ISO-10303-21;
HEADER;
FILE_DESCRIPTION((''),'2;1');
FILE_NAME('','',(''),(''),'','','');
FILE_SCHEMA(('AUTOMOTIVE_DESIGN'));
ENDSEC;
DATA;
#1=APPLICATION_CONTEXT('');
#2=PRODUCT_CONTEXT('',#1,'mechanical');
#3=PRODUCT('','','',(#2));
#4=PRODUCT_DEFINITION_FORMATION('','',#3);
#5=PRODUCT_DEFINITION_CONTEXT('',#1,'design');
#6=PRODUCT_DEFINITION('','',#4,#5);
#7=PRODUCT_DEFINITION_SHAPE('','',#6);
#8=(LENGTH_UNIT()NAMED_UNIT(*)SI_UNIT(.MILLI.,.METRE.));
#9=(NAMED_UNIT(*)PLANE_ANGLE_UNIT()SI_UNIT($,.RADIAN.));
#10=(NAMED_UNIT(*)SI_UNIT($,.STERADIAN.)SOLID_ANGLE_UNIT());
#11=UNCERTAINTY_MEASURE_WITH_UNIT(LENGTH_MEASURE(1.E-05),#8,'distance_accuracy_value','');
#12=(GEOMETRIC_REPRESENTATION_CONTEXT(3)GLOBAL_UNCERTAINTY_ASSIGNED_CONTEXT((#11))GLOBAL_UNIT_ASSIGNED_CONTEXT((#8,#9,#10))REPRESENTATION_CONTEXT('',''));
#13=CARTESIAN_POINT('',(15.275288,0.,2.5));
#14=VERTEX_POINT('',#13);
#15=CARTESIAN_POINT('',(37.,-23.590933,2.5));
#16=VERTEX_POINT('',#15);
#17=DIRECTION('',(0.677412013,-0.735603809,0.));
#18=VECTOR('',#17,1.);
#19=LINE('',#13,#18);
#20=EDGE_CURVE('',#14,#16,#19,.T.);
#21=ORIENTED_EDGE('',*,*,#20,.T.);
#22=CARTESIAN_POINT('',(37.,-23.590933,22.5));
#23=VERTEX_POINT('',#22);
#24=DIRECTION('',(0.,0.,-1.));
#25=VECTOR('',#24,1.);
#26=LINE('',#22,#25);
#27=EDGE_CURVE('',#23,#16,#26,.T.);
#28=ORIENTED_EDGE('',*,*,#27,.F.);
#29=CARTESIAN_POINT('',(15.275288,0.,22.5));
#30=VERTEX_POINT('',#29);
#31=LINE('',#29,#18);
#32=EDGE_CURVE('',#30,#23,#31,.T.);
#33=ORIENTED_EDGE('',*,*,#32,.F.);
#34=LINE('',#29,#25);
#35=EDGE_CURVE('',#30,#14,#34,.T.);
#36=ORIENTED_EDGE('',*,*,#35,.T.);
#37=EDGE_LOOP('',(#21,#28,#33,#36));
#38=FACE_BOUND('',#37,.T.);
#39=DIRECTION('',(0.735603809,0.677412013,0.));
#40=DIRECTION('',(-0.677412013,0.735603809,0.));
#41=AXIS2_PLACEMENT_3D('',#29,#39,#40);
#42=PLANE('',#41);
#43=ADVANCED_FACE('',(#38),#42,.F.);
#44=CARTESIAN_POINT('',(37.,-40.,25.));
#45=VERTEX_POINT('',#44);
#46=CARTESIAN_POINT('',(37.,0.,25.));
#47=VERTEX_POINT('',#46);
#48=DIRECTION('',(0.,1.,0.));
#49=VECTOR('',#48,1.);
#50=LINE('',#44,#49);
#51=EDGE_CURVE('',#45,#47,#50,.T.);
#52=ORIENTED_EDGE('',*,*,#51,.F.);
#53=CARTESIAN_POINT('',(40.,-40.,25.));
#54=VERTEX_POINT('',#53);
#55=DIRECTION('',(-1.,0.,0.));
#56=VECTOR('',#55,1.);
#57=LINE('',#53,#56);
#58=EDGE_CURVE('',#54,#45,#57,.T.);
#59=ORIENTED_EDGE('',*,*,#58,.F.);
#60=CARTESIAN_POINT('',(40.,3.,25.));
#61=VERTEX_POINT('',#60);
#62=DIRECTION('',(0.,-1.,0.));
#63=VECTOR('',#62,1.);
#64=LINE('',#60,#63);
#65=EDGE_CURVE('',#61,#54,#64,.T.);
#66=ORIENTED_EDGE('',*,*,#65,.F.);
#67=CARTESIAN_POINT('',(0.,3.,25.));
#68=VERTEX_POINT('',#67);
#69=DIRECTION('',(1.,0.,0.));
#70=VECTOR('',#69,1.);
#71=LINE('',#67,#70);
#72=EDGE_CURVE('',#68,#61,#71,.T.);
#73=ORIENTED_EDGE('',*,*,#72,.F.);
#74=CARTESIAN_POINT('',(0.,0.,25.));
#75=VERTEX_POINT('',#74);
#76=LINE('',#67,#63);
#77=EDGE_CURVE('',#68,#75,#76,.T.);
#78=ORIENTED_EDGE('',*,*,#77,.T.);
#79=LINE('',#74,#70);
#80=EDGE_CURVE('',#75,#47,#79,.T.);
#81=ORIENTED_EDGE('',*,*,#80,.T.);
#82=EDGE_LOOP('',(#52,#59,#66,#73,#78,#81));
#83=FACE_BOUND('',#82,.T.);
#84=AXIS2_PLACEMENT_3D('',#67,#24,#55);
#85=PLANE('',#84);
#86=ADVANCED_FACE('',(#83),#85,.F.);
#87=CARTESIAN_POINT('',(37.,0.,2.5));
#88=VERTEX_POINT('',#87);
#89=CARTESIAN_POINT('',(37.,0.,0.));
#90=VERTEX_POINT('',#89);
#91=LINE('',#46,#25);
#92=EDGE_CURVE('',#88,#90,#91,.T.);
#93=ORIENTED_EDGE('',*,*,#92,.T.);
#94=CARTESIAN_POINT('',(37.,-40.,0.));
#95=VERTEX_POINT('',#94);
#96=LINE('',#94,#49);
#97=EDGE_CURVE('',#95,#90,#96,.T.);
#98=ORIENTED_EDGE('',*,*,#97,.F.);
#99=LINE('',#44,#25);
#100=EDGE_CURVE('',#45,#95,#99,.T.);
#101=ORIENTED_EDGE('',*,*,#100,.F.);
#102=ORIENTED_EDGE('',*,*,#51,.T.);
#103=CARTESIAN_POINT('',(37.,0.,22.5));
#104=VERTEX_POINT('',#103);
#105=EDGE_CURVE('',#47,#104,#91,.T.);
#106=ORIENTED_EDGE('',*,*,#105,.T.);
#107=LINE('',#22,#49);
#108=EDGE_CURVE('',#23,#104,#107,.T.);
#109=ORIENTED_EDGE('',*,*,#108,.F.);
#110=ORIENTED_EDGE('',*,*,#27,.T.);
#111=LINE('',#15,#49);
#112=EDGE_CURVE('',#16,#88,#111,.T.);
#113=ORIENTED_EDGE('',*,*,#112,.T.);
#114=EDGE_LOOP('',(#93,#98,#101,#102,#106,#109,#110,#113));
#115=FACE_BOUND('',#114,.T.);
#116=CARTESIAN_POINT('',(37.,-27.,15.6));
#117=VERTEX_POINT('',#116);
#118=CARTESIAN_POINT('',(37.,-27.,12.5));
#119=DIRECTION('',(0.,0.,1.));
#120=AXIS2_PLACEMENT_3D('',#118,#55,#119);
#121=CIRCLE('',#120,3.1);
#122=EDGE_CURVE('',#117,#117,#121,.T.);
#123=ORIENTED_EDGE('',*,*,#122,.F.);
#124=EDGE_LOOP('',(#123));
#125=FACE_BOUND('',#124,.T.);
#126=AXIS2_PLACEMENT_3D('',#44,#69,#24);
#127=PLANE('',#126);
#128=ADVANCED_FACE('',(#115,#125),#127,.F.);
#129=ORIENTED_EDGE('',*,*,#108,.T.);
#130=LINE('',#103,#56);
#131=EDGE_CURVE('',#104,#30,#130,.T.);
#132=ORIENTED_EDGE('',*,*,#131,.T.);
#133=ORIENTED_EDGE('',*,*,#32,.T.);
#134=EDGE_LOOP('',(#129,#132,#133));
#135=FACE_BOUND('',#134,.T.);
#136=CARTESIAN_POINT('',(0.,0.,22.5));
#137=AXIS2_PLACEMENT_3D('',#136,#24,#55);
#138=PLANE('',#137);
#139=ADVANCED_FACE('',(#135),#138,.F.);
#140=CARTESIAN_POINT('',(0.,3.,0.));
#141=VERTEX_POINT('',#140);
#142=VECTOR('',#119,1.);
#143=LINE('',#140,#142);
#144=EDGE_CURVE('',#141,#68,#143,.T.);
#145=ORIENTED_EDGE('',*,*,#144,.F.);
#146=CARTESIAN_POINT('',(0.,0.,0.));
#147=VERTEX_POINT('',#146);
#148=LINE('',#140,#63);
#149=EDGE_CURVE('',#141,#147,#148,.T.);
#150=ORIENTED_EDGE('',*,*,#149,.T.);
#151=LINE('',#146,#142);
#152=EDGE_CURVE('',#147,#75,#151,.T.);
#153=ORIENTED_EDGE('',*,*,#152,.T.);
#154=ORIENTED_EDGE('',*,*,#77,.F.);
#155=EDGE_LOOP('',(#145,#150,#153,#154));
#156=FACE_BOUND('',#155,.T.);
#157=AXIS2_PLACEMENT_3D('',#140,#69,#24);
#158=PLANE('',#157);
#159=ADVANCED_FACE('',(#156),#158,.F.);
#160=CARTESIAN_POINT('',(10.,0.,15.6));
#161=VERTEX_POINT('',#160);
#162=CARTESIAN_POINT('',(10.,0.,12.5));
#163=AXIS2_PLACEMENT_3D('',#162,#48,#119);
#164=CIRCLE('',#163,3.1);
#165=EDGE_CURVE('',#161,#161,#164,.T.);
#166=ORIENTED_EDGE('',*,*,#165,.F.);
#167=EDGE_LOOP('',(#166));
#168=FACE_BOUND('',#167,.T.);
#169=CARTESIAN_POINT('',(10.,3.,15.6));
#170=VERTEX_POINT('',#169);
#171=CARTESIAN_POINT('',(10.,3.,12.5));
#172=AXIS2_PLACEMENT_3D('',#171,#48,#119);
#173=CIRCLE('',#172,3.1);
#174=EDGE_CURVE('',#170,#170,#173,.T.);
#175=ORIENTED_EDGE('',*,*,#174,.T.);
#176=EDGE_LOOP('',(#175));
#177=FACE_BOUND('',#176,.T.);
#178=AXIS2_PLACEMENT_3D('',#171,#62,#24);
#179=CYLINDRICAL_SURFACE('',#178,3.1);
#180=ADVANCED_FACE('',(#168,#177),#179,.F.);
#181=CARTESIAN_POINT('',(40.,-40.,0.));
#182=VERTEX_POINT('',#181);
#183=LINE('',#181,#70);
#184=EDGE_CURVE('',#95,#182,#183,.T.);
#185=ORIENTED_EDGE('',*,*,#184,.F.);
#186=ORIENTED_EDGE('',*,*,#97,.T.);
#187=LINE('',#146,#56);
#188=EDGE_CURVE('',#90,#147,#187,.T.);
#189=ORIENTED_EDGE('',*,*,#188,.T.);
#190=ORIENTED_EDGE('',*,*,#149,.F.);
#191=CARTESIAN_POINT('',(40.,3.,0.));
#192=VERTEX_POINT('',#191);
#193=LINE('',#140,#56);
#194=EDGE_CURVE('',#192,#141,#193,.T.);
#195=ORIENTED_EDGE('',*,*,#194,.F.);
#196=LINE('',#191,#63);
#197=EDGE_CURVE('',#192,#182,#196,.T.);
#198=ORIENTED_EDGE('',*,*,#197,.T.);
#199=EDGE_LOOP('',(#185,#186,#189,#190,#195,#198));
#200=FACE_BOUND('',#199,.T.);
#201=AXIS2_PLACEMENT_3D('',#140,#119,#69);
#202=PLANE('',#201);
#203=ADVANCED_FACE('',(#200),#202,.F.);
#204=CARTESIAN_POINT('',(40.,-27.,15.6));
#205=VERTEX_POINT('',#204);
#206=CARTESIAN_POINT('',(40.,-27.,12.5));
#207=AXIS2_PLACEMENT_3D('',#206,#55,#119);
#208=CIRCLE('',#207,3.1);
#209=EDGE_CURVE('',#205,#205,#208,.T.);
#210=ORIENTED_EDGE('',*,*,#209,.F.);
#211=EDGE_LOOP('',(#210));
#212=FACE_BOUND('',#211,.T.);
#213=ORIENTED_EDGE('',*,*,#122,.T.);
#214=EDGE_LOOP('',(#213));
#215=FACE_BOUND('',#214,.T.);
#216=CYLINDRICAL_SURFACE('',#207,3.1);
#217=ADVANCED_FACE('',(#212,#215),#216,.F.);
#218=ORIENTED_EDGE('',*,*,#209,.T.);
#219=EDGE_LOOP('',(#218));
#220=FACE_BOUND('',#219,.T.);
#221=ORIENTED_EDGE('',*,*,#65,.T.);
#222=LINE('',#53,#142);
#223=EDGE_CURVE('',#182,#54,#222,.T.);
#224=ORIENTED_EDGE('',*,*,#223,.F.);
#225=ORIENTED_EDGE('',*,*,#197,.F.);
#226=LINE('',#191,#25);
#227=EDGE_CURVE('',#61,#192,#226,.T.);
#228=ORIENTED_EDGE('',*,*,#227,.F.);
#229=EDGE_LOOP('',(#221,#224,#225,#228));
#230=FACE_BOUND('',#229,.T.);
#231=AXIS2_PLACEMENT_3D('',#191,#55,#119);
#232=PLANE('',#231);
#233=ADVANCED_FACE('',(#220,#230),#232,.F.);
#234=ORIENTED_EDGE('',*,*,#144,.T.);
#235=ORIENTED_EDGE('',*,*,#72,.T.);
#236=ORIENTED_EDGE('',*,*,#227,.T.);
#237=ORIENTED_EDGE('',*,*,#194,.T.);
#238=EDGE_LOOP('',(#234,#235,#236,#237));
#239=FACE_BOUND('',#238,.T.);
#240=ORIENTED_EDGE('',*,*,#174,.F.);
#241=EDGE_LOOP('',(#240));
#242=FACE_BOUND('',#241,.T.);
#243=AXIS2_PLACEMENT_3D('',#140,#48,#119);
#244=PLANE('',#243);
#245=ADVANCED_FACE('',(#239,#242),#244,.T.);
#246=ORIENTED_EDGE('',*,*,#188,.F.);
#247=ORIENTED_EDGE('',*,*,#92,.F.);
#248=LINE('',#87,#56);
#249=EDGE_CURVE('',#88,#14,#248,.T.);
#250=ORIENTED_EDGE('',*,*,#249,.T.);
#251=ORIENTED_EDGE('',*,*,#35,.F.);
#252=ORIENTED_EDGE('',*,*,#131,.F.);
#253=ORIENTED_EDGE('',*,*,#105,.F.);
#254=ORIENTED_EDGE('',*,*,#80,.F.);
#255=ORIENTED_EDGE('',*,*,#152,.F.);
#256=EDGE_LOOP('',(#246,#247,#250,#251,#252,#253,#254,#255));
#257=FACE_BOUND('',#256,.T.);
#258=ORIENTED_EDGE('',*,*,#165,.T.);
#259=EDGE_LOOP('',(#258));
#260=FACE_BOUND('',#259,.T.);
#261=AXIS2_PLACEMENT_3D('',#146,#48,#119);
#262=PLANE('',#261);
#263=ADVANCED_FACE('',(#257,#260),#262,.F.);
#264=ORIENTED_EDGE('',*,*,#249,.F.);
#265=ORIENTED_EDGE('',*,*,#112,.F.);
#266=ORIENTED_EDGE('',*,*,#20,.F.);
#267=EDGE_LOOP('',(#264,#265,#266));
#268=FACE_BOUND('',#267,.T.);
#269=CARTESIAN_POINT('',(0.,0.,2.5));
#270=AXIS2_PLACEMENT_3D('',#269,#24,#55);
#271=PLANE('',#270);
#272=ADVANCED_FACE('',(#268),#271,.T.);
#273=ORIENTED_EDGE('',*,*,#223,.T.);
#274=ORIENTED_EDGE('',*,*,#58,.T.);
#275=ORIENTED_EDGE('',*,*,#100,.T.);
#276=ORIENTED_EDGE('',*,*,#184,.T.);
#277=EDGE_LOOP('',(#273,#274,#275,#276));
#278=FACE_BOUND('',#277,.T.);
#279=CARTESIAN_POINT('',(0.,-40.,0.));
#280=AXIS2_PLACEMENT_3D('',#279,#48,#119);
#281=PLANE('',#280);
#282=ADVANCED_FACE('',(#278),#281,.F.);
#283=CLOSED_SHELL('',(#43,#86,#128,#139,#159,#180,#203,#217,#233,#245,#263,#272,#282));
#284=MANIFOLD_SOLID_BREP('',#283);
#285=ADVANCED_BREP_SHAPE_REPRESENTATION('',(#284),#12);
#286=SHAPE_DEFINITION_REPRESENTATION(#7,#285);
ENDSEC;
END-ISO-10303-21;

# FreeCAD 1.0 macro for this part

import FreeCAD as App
import Part
import Sketcher
from FreeCAD import Vector
Q = App.Units.Quantity

doc = App.newDocument("Part")
body = doc.addObject("PartDesign::Body", "Body")

# Sketch on XZ plane
sketch1 = doc.addObject("Sketcher::SketchObject", "Sketch")
body.addObject(sketch1)
sketch1.AttachmentSupport = (doc.XZ_Plane, [""])
sketch1.MapMode = "FlatFace"
sketch1.addGeometry(Part.LineSegment(Vector(0, 0, 0), Vector(0, 25, 0)), False)
sketch1.addGeometry(Part.LineSegment(Vector(0, 25, 0), Vector(40, 25, 0)), False)
sketch1.addGeometry(Part.LineSegment(Vector(40, 25, 0), Vector(40, 0, 0)), False)
sketch1.addGeometry(Part.LineSegment(Vector(40, 0, 0), Vector(0, 0, 0)), False)
sketch1.addGeometry(Part.Circle(Vector(10, 12.5, 0), Vector(0, 0, 1), 3.1), False)
sketch1.addConstraint(Sketcher.Constraint("Coincident", 0, 2, 1, 1))
sketch1.addConstraint(Sketcher.Constraint("Coincident", 1, 2, 2, 1))
sketch1.addConstraint(Sketcher.Constraint("Coincident", 2, 2, 3, 1))
sketch1.addConstraint(Sketcher.Constraint("Coincident", 3, 2, 0, 1))
sketch1.addConstraint(Sketcher.Constraint("Vertical", 0))
sketch1.addConstraint(Sketcher.Constraint("Horizontal", 1))
sketch1.addConstraint(Sketcher.Constraint("Vertical", 2))
sketch1.addConstraint(Sketcher.Constraint("Horizontal", 3))
sketch1.addConstraint(Sketcher.Constraint("Coincident", 3, 2, -1, 1))
sketch1.addConstraint(Sketcher.Constraint("Diameter", 4, Q("6.2 mm")))
sketch1.addConstraint(Sketcher.Constraint("DistanceX", 1, 1, 1, 2, Q("40 mm")))
sketch1.addConstraint(Sketcher.Constraint("DistanceY", 0, 1, 0, 2, Q("25 mm")))
sketch1.addConstraint(Sketcher.Constraint("DistanceX", -1, 1, 4, 3, Q("10 mm")))
sketch1.addConstraint(Sketcher.Constraint("DistanceY", -1, 1, 4, 3, Q("12.5 mm")))
pad1 = doc.addObject("PartDesign::Pad", "Pad")
body.addObject(pad1)
pad1.Profile = sketch1
pad1.Length = 3
pad1.Reversed = True

# Sketch on XZ plane
sketch2 = doc.addObject("Sketcher::SketchObject", "Sketch001")
body.addObject(sketch2)
sketch2.AttachmentSupport = (doc.XZ_Plane, [""])
sketch2.MapMode = "FlatFace"
sketch2.addGeometry(Part.LineSegment(Vector(37, 25, 0), Vector(37, 0, 0)), False)
sketch2.addGeometry(Part.LineSegment(Vector(37, 0, 0), Vector(40, 0, 0)), False)
sketch2.addGeometry(Part.LineSegment(Vector(40, 0, 0), Vector(40, 25, 0)), False)
sketch2.addGeometry(Part.LineSegment(Vector(40, 25, 0), Vector(37, 25, 0)), False)
sketch2.addConstraint(Sketcher.Constraint("Coincident", 0, 2, 1, 1))
sketch2.addConstraint(Sketcher.Constraint("Coincident", 1, 2, 2, 1))
sketch2.addConstraint(Sketcher.Constraint("Coincident", 2, 2, 3, 1))
sketch2.addConstraint(Sketcher.Constraint("Coincident", 3, 2, 0, 1))
sketch2.addConstraint(Sketcher.Constraint("Vertical", 0))
sketch2.addConstraint(Sketcher.Constraint("Horizontal", 1))
sketch2.addConstraint(Sketcher.Constraint("Vertical", 2))
sketch2.addConstraint(Sketcher.Constraint("Horizontal", 3))
sketch2.addConstraint(Sketcher.Constraint("PointOnObject", 0, 2, -1))
sketch2.addConstraint(Sketcher.Constraint("DistanceX", 1, 1, 1, 2, Q("3 mm")))
sketch2.addConstraint(Sketcher.Constraint("DistanceY", 0, 2, 0, 1, Q("25 mm")))
sketch2.addConstraint(Sketcher.Constraint("DistanceX", -1, 1, 0, 2, Q("37 mm")))
pad2 = doc.addObject("PartDesign::Pad", "Pad001")
body.addObject(pad2)
pad2.Profile = sketch2
pad2.Length = 40

# Sketch on YZ plane
sketch3 = doc.addObject("Sketcher::SketchObject", "Sketch002")
body.addObject(sketch3)
sketch3.AttachmentSupport = (doc.YZ_Plane, [""])
sketch3.MapMode = "FlatFace"
sketch3.AttachmentOffset = App.Placement(Vector(0, 0, 37), App.Rotation())
sketch3.addGeometry(Part.Circle(Vector(-27, 12.5, 0), Vector(0, 0, 1), 3.1), False)
sketch3.addConstraint(Sketcher.Constraint("Diameter", 0, Q("6.2 mm")))
sketch3.addConstraint(Sketcher.Constraint("DistanceX", 0, 3, -1, 1, Q("27 mm")))
sketch3.addConstraint(Sketcher.Constraint("DistanceY", -1, 1, 0, 3, Q("12.5 mm")))
pocket1 = doc.addObject("PartDesign::Pocket", "Pocket")
body.addObject(pocket1)
pocket1.Profile = sketch3
pocket1.Type = "ThroughAll"
pocket1.Reversed = True

# Sketch on XY plane
sketch4 = doc.addObject("Sketcher::SketchObject", "Sketch003")
body.addObject(sketch4)
sketch4.AttachmentSupport = (doc.XY_Plane, [""])
sketch4.MapMode = "FlatFace"
sketch4.AttachmentOffset = App.Placement(Vector(0, 0, 12.5), App.Rotation())
sketch4.addGeometry(Part.LineSegment(Vector(15.275288, 0, 0), Vector(37, -23.590933, 0)), False)
sketch4.addGeometry(Part.LineSegment(Vector(37, -23.590933, 0), Vector(37, 0, 0)), False)
sketch4.addGeometry(Part.LineSegment(Vector(37, 0, 0), Vector(15.275288, 0, 0)), False)
sketch4.addConstraint(Sketcher.Constraint("Coincident", 0, 2, 1, 1))
sketch4.addConstraint(Sketcher.Constraint("Coincident", 1, 2, 2, 1))
sketch4.addConstraint(Sketcher.Constraint("Coincident", 2, 2, 0, 1))
sketch4.addConstraint(Sketcher.Constraint("Vertical", 1))
sketch4.addConstraint(Sketcher.Constraint("Horizontal", 2))
sketch4.addConstraint(Sketcher.Constraint("PointOnObject", 1, 2, -1))
sketch4.addConstraint(Sketcher.Constraint("DistanceX", -1, 1, 0, 2, Q("37 mm")))
sketch4.addConstraint(Sketcher.Constraint("Distance", 0, Q("32.070161 mm")))
sketch4.addConstraint(Sketcher.Constraint("DistanceX", 2, 2, 2, 1, Q("21.724712 mm")))
pad3 = doc.addObject("PartDesign::Pad", "Pad002")
body.addObject(pad3)
pad3.Profile = sketch4
pad3.Length = 20
pad3.Midplane = True

doc.recompute()
